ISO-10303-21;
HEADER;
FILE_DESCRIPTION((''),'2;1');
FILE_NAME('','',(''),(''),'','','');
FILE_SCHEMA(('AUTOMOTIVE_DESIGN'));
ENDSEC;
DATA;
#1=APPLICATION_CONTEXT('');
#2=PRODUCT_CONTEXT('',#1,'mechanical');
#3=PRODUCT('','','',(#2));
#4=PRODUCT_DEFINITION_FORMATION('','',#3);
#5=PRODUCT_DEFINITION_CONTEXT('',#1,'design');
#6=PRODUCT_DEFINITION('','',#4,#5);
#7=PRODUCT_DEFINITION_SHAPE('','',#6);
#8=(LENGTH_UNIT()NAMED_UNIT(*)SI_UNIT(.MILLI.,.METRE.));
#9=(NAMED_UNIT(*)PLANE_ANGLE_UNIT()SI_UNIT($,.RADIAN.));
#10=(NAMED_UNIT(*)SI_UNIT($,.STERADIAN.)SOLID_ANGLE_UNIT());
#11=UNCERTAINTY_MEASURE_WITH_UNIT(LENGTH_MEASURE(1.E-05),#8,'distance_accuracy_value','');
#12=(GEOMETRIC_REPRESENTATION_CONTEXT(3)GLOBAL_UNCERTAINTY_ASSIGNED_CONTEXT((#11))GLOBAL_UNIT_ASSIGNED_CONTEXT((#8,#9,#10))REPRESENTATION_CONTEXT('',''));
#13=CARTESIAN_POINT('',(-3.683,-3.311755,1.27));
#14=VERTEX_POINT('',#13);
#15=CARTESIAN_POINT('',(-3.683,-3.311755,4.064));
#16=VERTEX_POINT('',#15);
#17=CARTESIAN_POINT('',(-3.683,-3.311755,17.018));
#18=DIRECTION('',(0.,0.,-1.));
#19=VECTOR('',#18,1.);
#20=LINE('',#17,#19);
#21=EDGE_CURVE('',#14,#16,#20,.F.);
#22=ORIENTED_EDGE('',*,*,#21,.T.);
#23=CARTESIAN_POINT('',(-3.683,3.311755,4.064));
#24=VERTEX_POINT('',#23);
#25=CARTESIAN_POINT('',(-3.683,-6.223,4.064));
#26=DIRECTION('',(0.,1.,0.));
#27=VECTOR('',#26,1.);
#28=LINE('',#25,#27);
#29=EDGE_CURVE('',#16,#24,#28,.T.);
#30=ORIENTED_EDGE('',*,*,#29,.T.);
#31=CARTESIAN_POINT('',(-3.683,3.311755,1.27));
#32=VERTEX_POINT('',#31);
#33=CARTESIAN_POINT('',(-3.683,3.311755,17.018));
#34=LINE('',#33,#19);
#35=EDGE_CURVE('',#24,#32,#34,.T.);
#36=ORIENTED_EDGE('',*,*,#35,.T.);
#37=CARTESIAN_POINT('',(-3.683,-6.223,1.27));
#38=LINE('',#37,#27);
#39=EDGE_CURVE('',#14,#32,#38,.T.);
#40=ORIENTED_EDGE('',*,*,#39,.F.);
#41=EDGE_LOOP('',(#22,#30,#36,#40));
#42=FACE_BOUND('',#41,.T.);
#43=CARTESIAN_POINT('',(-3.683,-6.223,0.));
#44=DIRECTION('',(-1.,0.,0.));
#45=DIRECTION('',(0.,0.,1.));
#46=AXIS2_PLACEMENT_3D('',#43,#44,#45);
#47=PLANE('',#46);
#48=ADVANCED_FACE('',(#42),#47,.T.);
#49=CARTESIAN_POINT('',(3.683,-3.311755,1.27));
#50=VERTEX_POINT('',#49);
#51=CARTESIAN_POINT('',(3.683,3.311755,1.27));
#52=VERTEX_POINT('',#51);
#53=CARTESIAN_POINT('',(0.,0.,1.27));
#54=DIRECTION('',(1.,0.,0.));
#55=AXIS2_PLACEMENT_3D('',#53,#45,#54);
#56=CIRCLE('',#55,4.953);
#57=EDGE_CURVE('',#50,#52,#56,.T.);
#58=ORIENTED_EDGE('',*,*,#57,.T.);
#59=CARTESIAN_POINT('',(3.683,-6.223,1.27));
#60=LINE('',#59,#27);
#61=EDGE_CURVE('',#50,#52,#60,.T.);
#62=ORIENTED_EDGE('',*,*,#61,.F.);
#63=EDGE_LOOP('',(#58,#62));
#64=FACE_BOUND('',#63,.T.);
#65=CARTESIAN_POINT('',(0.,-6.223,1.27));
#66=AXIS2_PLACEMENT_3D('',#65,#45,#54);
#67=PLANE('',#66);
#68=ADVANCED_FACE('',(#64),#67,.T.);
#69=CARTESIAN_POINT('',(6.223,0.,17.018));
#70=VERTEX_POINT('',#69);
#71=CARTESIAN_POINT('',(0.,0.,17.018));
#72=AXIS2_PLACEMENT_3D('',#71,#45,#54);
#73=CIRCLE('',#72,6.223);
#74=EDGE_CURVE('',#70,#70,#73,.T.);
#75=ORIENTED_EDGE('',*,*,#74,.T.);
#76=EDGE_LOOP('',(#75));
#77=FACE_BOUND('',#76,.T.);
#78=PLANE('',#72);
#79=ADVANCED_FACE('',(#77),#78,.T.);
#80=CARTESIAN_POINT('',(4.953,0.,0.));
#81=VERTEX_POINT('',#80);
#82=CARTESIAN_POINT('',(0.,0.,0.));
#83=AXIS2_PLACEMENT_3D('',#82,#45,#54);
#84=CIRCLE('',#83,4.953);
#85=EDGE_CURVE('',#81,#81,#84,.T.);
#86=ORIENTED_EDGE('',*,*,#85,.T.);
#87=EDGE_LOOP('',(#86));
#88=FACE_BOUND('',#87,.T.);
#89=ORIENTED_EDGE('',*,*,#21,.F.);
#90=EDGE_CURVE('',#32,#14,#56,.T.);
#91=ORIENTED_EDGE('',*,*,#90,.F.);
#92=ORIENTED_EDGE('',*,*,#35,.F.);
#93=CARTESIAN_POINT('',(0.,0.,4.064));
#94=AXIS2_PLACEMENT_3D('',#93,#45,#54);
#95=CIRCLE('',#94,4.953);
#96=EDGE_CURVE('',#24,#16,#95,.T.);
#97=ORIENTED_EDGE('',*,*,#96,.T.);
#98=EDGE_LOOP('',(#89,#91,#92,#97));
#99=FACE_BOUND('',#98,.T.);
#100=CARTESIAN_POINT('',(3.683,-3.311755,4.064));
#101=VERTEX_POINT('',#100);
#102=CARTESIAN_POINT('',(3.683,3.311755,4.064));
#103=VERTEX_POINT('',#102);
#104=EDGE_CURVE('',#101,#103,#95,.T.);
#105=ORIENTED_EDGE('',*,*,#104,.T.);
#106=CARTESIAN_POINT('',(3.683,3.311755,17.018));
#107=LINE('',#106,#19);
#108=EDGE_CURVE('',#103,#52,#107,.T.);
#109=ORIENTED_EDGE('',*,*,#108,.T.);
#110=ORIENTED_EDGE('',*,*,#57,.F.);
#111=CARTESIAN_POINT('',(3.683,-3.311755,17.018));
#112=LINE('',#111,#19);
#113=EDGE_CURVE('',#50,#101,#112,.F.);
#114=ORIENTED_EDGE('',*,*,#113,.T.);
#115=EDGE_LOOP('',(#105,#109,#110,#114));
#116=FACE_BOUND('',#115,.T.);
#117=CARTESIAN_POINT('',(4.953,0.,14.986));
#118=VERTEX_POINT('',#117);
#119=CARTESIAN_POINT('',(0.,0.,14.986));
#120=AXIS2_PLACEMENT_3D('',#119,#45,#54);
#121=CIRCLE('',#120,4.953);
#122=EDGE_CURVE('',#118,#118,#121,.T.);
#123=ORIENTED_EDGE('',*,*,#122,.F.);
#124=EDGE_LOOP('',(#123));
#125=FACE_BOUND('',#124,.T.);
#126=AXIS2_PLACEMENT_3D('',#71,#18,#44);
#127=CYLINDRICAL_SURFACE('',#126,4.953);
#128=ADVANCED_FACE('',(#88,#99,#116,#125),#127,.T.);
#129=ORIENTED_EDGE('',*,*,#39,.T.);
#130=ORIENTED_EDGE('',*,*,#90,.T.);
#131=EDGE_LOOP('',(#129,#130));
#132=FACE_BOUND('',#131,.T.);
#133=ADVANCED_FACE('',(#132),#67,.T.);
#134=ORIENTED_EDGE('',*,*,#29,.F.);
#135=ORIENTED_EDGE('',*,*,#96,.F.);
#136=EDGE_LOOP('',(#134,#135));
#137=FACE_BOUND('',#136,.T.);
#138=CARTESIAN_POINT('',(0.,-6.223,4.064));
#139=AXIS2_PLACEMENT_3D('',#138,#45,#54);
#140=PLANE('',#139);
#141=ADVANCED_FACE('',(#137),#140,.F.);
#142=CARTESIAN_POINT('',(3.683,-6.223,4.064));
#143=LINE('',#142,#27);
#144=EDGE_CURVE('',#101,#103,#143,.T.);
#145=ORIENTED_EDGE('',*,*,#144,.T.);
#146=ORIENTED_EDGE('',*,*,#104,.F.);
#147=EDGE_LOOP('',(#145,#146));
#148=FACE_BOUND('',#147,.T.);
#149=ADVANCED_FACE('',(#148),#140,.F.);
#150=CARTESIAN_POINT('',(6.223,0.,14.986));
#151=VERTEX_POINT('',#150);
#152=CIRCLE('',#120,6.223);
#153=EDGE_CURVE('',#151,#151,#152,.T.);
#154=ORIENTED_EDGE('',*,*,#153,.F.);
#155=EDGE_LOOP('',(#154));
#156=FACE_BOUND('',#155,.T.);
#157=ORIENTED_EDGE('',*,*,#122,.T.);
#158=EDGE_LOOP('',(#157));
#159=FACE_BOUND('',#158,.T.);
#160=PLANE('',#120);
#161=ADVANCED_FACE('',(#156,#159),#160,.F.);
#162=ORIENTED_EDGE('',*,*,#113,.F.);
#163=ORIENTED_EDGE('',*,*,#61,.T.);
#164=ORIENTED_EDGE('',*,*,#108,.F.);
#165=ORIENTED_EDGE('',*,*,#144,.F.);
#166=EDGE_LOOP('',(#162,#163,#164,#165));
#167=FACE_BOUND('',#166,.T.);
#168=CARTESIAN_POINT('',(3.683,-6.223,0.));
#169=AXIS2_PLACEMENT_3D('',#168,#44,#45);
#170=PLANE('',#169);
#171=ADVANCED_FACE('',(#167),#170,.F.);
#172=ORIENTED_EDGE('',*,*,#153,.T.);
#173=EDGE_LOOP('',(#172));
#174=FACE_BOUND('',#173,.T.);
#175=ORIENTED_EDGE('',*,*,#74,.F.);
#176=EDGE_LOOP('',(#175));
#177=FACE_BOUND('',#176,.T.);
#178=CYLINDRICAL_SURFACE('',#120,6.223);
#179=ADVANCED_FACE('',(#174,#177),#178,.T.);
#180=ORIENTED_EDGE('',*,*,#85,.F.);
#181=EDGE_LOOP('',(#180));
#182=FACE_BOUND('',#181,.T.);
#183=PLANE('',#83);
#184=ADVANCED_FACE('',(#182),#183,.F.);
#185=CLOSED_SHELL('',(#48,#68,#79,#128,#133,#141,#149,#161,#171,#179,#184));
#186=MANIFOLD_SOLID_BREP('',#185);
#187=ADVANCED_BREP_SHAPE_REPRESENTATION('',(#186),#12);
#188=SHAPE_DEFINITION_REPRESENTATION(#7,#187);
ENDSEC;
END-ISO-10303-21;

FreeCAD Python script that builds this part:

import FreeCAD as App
import Part
import Sketcher
Q = App.Units.Quantity

doc = App.newDocument("Part")
body = doc.addObject("PartDesign::Body", "Body")

sketch1 = body.newObject("Sketcher::SketchObject", "Sketch")
sketch1.AttachmentSupport = (doc.getObject("XY_Plane"), [""])
sketch1.MapMode = "FlatFace"
sketch1.addGeometry(Part.Circle(App.Vector(0, 0, 0), App.Vector(0, 0, 1), 5), False)
sketch1.addConstraint([
    Sketcher.Constraint("Coincident", 0, 3, -1, 1),
    Sketcher.Constraint("Diameter", 0, Q("0.39 in")),
])
pad1 = body.newObject("PartDesign::Pad", "Pad")
pad1.Profile = sketch1
pad1.Length = Q("0.67 in")

sketch2 = body.newObject("Sketcher::SketchObject", "Sketch001")
sketch2.AttachmentSupport = (doc.getObject("XY_Plane"), [""])
sketch2.MapMode = "FlatFace"
sketch2.AttachmentOffset = App.Placement(App.Vector(0, 0, 0.67 * 25.4), App.Rotation())
sketch2.addGeometry(Part.Circle(App.Vector(0, 0, 0), App.Vector(0, 0, 1), 6), False)
sketch2.addConstraint([
    Sketcher.Constraint("Coincident", 0, 3, -1, 1),
    Sketcher.Constraint("Diameter", 0, Q("0.49 in")),
])
pad2 = body.newObject("PartDesign::Pad", "Pad001")
pad2.Profile = sketch2
pad2.Length = Q("0.08 in")
pad2.Reversed = True

sketch3 = body.newObject("Sketcher::SketchObject", "Sketch002")
sketch3.AttachmentSupport = (doc.getObject("XZ_Plane"), [""])
sketch3.MapMode = "FlatFace"
sketch3.addGeometry([
    Part.LineSegment(App.Vector(3.7, 1.3, 0), App.Vector(3.7, 4.1, 0)),
    Part.LineSegment(App.Vector(3.7, 4.1, 0), App.Vector(5, 4.1, 0)),
    Part.LineSegment(App.Vector(5, 4.1, 0), App.Vector(5, 1.3, 0)),
    Part.LineSegment(App.Vector(5, 1.3, 0), App.Vector(3.7, 1.3, 0)),
    Part.LineSegment(App.Vector(-5, 1.3, 0), App.Vector(-5, 4.1, 0)),
    Part.LineSegment(App.Vector(-5, 4.1, 0), App.Vector(-3.7, 4.1, 0)),
    Part.LineSegment(App.Vector(-3.7, 4.1, 0), App.Vector(-3.7, 1.3, 0)),
    Part.LineSegment(App.Vector(-3.7, 1.3, 0), App.Vector(-5, 1.3, 0)),
], False)
sketch3.addConstraint([
    Sketcher.Constraint("Coincident", 0, 2, 1, 1),
    Sketcher.Constraint("Coincident", 1, 2, 2, 1),
    Sketcher.Constraint("Coincident", 2, 2, 3, 1),
    Sketcher.Constraint("Coincident", 3, 2, 0, 1),
    Sketcher.Constraint("Coincident", 4, 2, 5, 1),
    Sketcher.Constraint("Coincident", 5, 2, 6, 1),
    Sketcher.Constraint("Coincident", 6, 2, 7, 1),
    Sketcher.Constraint("Coincident", 7, 2, 4, 1),
    Sketcher.Constraint("Vertical", 0),
    Sketcher.Constraint("Horizontal", 1),
    Sketcher.Constraint("Vertical", 2),
    Sketcher.Constraint("Horizontal", 3),
    Sketcher.Constraint("Vertical", 4),
    Sketcher.Constraint("Horizontal", 5),
    Sketcher.Constraint("Vertical", 6),
    Sketcher.Constraint("Horizontal", 7),
    Sketcher.Constraint("Symmetric", 1, 2, 4, 2, -2),
    Sketcher.Constraint("Symmetric", 3, 2, 6, 2, -2),
    Sketcher.Constraint("DistanceX", 1, 1, 1, 2, Q("0.05 in")),
    Sketcher.Constraint("DistanceY", 0, 1, 0, 2, Q("0.11 in")),
    Sketcher.Constraint("DistanceY", -1, 1, 0, 2, Q("0.16 in")),
    Sketcher.Constraint("DistanceX", 4, 2, 0, 2, Q("0.34 in")),
])
pocket1 = body.newObject("PartDesign::Pocket", "Pocket")
pocket1.Profile = sketch3
pocket1.Type = "ThroughAll"
pocket1.Midplane = True

doc.recompute()
